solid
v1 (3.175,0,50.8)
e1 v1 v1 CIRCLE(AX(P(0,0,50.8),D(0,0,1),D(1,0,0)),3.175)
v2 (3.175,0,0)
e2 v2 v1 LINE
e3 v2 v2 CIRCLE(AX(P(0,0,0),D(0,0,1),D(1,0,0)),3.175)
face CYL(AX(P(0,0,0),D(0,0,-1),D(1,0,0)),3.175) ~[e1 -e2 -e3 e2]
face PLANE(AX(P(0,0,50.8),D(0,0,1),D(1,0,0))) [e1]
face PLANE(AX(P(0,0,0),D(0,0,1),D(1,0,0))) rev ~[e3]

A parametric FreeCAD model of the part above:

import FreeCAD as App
import Part
import Sketcher

V = App.Vector
Q = App.Units.Quantity

doc = App.newDocument("Part")
body = doc.addObject("PartDesign::Body", "Body")

# Sketch on XY plane
sketch1 = body.newObject("Sketcher::SketchObject", "Sketch")
sketch1.AttachmentSupport = (doc.getObject("XY_Plane"), [""])
sketch1.MapMode = "FlatFace"
sketch1.addGeometry(Part.Circle(V(0, 0, 0), V(0, 0, 1), 3.175), False)
sketch1.addConstraint([
    Sketcher.Constraint("Coincident", 0, 3, -1, 1),
    Sketcher.Constraint("Diameter", 0, Q("0.25 in")),
])
pad1 = body.newObject("PartDesign::Pad", "Pad")
pad1.Profile = sketch1
pad1.Length = Q("2 in")

doc.recompute()
